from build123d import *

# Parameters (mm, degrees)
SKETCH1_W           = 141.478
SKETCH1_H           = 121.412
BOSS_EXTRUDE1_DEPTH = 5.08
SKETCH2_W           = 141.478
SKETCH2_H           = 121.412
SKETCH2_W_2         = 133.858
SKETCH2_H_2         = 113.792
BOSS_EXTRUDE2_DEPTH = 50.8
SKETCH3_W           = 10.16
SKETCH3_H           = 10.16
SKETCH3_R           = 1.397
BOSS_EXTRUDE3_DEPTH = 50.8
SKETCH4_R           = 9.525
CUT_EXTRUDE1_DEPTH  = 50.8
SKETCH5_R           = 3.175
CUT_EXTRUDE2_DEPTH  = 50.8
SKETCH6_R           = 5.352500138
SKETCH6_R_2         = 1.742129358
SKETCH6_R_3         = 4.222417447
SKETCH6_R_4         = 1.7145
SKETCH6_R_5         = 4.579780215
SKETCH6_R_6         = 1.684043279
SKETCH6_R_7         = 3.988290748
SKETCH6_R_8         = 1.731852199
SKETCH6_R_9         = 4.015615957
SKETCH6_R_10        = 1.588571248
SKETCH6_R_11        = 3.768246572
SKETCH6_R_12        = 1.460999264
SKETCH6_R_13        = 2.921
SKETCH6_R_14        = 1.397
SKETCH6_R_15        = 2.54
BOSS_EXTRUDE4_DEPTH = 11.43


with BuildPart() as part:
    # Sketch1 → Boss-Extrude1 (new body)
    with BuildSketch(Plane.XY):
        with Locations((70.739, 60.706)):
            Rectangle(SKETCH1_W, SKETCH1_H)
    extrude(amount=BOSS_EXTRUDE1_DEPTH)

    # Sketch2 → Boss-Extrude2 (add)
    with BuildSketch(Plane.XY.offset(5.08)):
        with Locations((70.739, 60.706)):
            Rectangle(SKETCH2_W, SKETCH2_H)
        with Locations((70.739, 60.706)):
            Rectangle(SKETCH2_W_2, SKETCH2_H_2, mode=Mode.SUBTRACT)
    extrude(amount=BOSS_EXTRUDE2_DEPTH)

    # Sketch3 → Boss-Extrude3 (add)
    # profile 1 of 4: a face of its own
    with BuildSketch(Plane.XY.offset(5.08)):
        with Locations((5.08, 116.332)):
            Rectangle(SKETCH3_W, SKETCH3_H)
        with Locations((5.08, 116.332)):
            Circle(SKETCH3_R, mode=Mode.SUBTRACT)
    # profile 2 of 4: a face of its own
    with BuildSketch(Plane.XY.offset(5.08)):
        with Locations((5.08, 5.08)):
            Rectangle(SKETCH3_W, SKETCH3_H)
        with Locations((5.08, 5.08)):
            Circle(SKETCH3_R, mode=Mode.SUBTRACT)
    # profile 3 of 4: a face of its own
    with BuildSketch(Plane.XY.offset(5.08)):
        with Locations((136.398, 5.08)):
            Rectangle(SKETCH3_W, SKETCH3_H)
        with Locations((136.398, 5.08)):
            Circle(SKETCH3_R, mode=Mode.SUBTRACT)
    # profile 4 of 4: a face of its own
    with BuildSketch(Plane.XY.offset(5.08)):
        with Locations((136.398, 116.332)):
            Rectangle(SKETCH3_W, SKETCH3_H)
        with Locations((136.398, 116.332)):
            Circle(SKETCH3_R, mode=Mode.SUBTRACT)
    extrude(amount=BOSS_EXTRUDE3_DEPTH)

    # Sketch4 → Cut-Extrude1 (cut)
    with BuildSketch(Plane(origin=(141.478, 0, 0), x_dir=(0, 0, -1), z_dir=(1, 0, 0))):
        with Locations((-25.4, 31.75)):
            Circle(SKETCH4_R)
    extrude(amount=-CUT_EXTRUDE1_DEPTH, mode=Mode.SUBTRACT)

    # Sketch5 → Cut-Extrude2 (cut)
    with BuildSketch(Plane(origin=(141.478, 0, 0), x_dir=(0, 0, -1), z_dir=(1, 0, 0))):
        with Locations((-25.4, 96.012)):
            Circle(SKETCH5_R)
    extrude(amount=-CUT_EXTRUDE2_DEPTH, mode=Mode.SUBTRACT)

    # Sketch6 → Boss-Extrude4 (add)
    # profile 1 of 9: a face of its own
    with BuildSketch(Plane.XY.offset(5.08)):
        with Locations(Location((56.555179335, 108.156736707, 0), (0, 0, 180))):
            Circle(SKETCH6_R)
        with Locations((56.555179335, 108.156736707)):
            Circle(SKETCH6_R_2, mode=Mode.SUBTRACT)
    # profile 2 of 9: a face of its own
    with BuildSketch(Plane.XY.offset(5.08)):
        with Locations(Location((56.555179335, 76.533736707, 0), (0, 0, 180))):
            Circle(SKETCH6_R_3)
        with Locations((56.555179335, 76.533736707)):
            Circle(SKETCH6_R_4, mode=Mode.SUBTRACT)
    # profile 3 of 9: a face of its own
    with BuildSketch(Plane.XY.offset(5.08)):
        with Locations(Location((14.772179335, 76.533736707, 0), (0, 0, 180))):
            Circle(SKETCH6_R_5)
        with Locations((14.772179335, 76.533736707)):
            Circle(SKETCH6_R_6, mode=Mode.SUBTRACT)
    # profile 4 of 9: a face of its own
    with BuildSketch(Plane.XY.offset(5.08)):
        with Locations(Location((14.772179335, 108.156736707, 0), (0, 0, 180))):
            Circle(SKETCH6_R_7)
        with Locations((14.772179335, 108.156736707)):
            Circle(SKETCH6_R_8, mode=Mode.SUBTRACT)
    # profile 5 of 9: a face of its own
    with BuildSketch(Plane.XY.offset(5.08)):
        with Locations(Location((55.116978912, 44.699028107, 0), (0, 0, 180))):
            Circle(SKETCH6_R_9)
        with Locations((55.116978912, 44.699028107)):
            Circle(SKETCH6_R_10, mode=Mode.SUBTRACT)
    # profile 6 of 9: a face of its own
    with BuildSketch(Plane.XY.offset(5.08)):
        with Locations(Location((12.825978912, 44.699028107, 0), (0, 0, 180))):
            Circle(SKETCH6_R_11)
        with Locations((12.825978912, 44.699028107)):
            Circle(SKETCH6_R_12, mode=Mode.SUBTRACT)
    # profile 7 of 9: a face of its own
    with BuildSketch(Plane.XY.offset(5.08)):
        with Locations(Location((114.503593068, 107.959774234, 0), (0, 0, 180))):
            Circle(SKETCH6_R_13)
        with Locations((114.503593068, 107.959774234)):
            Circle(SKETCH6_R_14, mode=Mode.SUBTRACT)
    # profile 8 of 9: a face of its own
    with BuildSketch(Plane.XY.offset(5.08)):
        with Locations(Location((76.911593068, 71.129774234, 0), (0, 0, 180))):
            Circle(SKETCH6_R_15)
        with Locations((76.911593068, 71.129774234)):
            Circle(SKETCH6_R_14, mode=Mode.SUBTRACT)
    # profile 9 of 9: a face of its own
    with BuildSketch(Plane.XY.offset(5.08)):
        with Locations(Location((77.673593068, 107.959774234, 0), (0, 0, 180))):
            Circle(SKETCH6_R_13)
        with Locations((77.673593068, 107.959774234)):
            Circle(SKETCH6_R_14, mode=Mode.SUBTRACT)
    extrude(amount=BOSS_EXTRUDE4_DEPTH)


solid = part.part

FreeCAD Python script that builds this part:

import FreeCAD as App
import Part
import Sketcher

V = App.Vector
Q = App.Units.Quantity


def add_polygon(sketch, points):
    """Adds a closed chain of lines whose ends are joined by coincident constraints."""
    first, n = sketch.GeometryCount, len(points)
    for a, b in zip(points, points[1:] + points[:1]):
        sketch.addGeometry(Part.LineSegment(App.Vector(*a, 0), App.Vector(*b, 0)), False)
    for i in range(n):
        sketch.addConstraint(Sketcher.Constraint("Coincident", first + i, 2, first + (i + 1) % n, 1))

doc = App.newDocument("Part")
body = doc.addObject("PartDesign::Body", "Body")

# Sketch on XY plane
sketch1 = body.newObject("Sketcher::SketchObject", "Sketch")
sketch1.AttachmentSupport = (doc.getObject("XY_Plane"), [""])
sketch1.MapMode = "FlatFace"
add_polygon(sketch1, [(0, 121), (0, 0), (141, 0), (141, 121)])  # lines 0-3
sketch1.addConstraint(Sketcher.Constraint("Vertical", 0))
sketch1.addConstraint(Sketcher.Constraint("Horizontal", 1))
sketch1.addConstraint(Sketcher.Constraint("Vertical", 2))
sketch1.addConstraint(Sketcher.Constraint("Horizontal", 3))
sketch1.addConstraint(Sketcher.Constraint("Coincident", 0, 2, -1, 1))
sketch1.addConstraint(Sketcher.Constraint("DistanceX", 1, 1, 1, 2, Q("5.57 in")))
sketch1.addConstraint(Sketcher.Constraint("DistanceY", 0, 2, 0, 1, Q("4.78 in")))
pad1 = body.newObject("PartDesign::Pad", "Pad")
pad1.Profile = sketch1
pad1.Length = Q("0.2 in")

# Sketch on XY plane
sketch2 = body.newObject("Sketcher::SketchObject", "Sketch001")
sketch2.AttachmentSupport = (doc.getObject("XY_Plane"), [""])
sketch2.MapMode = "FlatFace"
sketch2.AttachmentOffset = App.Placement(V(0, 0, 0.2 * 25.4), App.Rotation())
add_polygon(sketch2, [(0, 121), (0, 0), (141, 0), (141, 121)])  # lines 0-3
add_polygon(sketch2, [(138, 4), (4, 4), (4, 118), (138, 118)])  # lines 4-7
sketch2.addConstraint(Sketcher.Constraint("Vertical", 0))
sketch2.addConstraint(Sketcher.Constraint("Horizontal", 1))
sketch2.addConstraint(Sketcher.Constraint("Vertical", 2))
sketch2.addConstraint(Sketcher.Constraint("Horizontal", 3))
sketch2.addConstraint(Sketcher.Constraint("Horizontal", 4))
sketch2.addConstraint(Sketcher.Constraint("Vertical", 5))
sketch2.addConstraint(Sketcher.Constraint("Horizontal", 6))
sketch2.addConstraint(Sketcher.Constraint("Vertical", 7))
sketch2.addConstraint(Sketcher.Constraint("Coincident", 0, 2, -1, 1))
sketch2.addConstraint(Sketcher.Constraint("DistanceX", 1, 1, 1, 2, Q("5.57 in")))
sketch2.addConstraint(Sketcher.Constraint("DistanceX", 4, 2, 4, 1, Q("5.27 in")))
sketch2.addConstraint(Sketcher.Constraint("DistanceY", 0, 2, 0, 1, Q("4.78 in")))
sketch2.addConstraint(Sketcher.Constraint("DistanceY", 5, 1, 5, 2, Q("4.48 in")))
sketch2.addConstraint(Sketcher.Constraint("DistanceX", -1, 1, 4, 2, Q("0.15 in")))
sketch2.addConstraint(Sketcher.Constraint("DistanceY", -1, 1, 4, 2, Q("0.15 in")))
pad2 = body.newObject("PartDesign::Pad", "Pad001")
pad2.Profile = sketch2
pad2.Length = Q("2 in")

# Sketch on XY plane
sketch3 = body.newObject("Sketcher::SketchObject", "Sketch002")
sketch3.AttachmentSupport = (doc.getObject("XY_Plane"), [""])
sketch3.MapMode = "FlatFace"
sketch3.AttachmentOffset = App.Placement(V(0, 0, 0.2 * 25.4), App.Rotation())
add_polygon(sketch3, [(0, 121.4), (0, 111.3), (10.2, 111.3), (10.2, 121.4)])  # lines 0-3
sketch3.addGeometry(Part.Circle(V(5.1, 116.3, 0), V(0, 0, 1), 1.4), False)  # 4
add_polygon(sketch3, [(0, 10.2), (0, 0), (10.2, 0), (10.2, 10.2)])  # lines 5-8
sketch3.addGeometry(Part.Circle(V(5.1, 5.1, 0), V(0, 0, 1), 1.4), False)  # 9
add_polygon(sketch3, [(131.3, 10.2), (131.3, 0), (141.5, 0), (141.5, 10.2)])  # lines 10-13
sketch3.addGeometry(Part.Circle(V(136.4, 5.1, 0), V(0, 0, 1), 1.4), False)  # 14
add_polygon(sketch3, [(131.3, 121.4), (131.3, 111.3), (141.5, 111.3), (141.5, 121.4)])  # lines 15-18
sketch3.addGeometry(Part.Circle(V(136.4, 116.3, 0), V(0, 0, 1), 1.4), False)  # 19
sketch3.addConstraint(Sketcher.Constraint("Vertical", 0))
sketch3.addConstraint(Sketcher.Constraint("Horizontal", 1))
sketch3.addConstraint(Sketcher.Constraint("Vertical", 2))
sketch3.addConstraint(Sketcher.Constraint("Horizontal", 3))
sketch3.addConstraint(Sketcher.Constraint("Vertical", 5))
sketch3.addConstraint(Sketcher.Constraint("Horizontal", 6))
sketch3.addConstraint(Sketcher.Constraint("Vertical", 7))
sketch3.addConstraint(Sketcher.Constraint("Horizontal", 8))
sketch3.addConstraint(Sketcher.Constraint("Vertical", 10))
sketch3.addConstraint(Sketcher.Constraint("Horizontal", 11))
sketch3.addConstraint(Sketcher.Constraint("Vertical", 12))
sketch3.addConstraint(Sketcher.Constraint("Horizontal", 13))
sketch3.addConstraint(Sketcher.Constraint("Vertical", 15))
sketch3.addConstraint(Sketcher.Constraint("Horizontal", 16))
sketch3.addConstraint(Sketcher.Constraint("Vertical", 17))
sketch3.addConstraint(Sketcher.Constraint("Horizontal", 18))
sketch3.addConstraint(Sketcher.Constraint("Coincident", 5, 2, -1, 1))
sketch3.addConstraint(Sketcher.Constraint("Equal", 4, 9))
sketch3.addConstraint(Sketcher.Constraint("Equal", 9, 14))
sketch3.addConstraint(Sketcher.Constraint("Equal", 14, 19))
sketch3.addConstraint(Sketcher.Constraint("PointOnObject", 0, 2, -2))
sketch3.addConstraint(Sketcher.Constraint("PointOnObject", 10, 2, -1))
sketch3.addConstraint(Sketcher.Constraint("Horizontal", 9, 3, 14, 3))
sketch3.addConstraint(Sketcher.Constraint("Horizontal", 4, 3, 19, 3))
sketch3.addConstraint(Sketcher.Constraint("Horizontal", 8, 2, 12, 2))
sketch3.addConstraint(Sketcher.Constraint("Horizontal", 1, 2, 15, 2))
sketch3.addConstraint(Sketcher.Constraint("Horizontal", 3, 2, 17, 2))
sketch3.addConstraint(Sketcher.Constraint("Vertical", 4, 3, 9, 3))
sketch3.addConstraint(Sketcher.Constraint("Vertical", 14, 3, 19, 3))
sketch3.addConstraint(Sketcher.Constraint("Vertical", 2, 2, 6, 2))
sketch3.addConstraint(Sketcher.Constraint("Vertical", 13, 2, 15, 2))
sketch3.addConstraint(Sketcher.Constraint("Vertical", 12, 2, 16, 2))
sketch3.addConstraint(Sketcher.Constraint("Equal", 8, 11))
sketch3.addConstraint(Sketcher.Constraint("Equal", 18, 0))
sketch3.addConstraint(Sketcher.Constraint("Equal", 2, 5))
sketch3.addConstraint(Sketcher.Constraint("Diameter", 4, Q("0.11 in")))
sketch3.addConstraint(Sketcher.Constraint("DistanceX", 1, 1, 1, 2, Q("0.4 in")))
sketch3.addConstraint(Sketcher.Constraint("DistanceX", -1, 1, 4, 3, Q("0.2 in")))
sketch3.addConstraint(Sketcher.Constraint("DistanceY", -1, 1, 9, 3, Q("0.2 in")))
sketch3.addConstraint(Sketcher.Constraint("DistanceY", 0, 2, 4, 3, Q("0.2 in")))
sketch3.addConstraint(Sketcher.Constraint("DistanceX", 10, 2, 14, 3, Q("0.2 in")))
sketch3.addConstraint(Sketcher.Constraint("DistanceY", -1, 1, 4, 3, Q("4.58 in")))
sketch3.addConstraint(Sketcher.Constraint("DistanceX", -1, 1, 14, 3, Q("5.37 in")))
pad3 = body.newObject("PartDesign::Pad", "Pad002")
pad3.Profile = sketch3
pad3.Length = Q("2 in")

# Sketch on YZ plane
sketch4 = body.newObject("Sketcher::SketchObject", "Sketch003")
sketch4.AttachmentSupport = (doc.getObject("YZ_Plane"), [""])
sketch4.MapMode = "FlatFace"
sketch4.AttachmentOffset = App.Placement(V(0, 0, 5.57 * 25.4), App.Rotation())
sketch4.addGeometry(Part.Circle(V(32, 25, 0), V(0, 0, 1), 10), False)
sketch4.addConstraint(Sketcher.Constraint("Diameter", 0, Q("0.75 in")))
sketch4.addConstraint(Sketcher.Constraint("DistanceY", -1, 1, 0, 3, Q("1 in")))
sketch4.addConstraint(Sketcher.Constraint("DistanceX", -1, 1, 0, 3, Q("1.25 in")))
pocket1 = body.newObject("PartDesign::Pocket", "Pocket")
pocket1.Profile = sketch4
pocket1.Length = Q("2 in")

# Sketch on YZ plane
sketch5 = body.newObject("Sketcher::SketchObject", "Sketch004")
sketch5.AttachmentSupport = (doc.getObject("YZ_Plane"), [""])
sketch5.MapMode = "FlatFace"
sketch5.AttachmentOffset = App.Placement(V(0, 0, 5.57 * 25.4), App.Rotation())
sketch5.addGeometry(Part.Circle(V(96, 25.4, 0), V(0, 0, 1), 3.2), False)
sketch5.addConstraint(Sketcher.Constraint("Diameter", 0, Q("0.25 in")))
sketch5.addConstraint(Sketcher.Constraint("DistanceY", -1, 1, 0, 3, Q("1 in")))
sketch5.addConstraint(Sketcher.Constraint("DistanceX", -1, 1, 0, 3, Q("3.78 in")))
pocket2 = body.newObject("PartDesign::Pocket", "Pocket001")
pocket2.Profile = sketch5
pocket2.Length = Q("2 in")

# Sketch on XY plane
sketch6 = body.newObject("Sketcher::SketchObject", "Sketch005")
sketch6.AttachmentSupport = (doc.getObject("XY_Plane"), [""])
sketch6.MapMode = "FlatFace"
sketch6.AttachmentOffset = App.Placement(V(0, 0, 0.2 * 25.4), App.Rotation())
sketch6.addGeometry(Part.Circle(V(56.6, 108.2, 0), V(0, 0, 1), 5.4), False)
sketch6.addGeometry(Part.Circle(V(56.6, 108.2, 0), V(0, 0, 1), 1.7), False)
sketch6.addGeometry(Part.Circle(V(56.6, 76.5, 0), V(0, 0, 1), 4.2), False)
sketch6.addGeometry(Part.Circle(V(56.6, 76.5, 0), V(0, 0, 1), 1.7), False)
sketch6.addGeometry(Part.Circle(V(14.8, 76.5, 0), V(0, 0, 1), 4.6), False)
sketch6.addGeometry(Part.Circle(V(14.8, 76.5, 0), V(0, 0, 1), 1.7), False)
sketch6.addGeometry(Part.Circle(V(14.8, 108.2, 0), V(0, 0, 1), 4), False)
sketch6.addGeometry(Part.Circle(V(14.8, 108.2, 0), V(0, 0, 1), 1.7), False)
sketch6.addGeometry(Part.Circle(V(55.1, 44.7, 0), V(0, 0, 1), 4), False)
sketch6.addGeometry(Part.Circle(V(55.1, 44.7, 0), V(0, 0, 1), 1.6), False)
sketch6.addGeometry(Part.Circle(V(12.8, 44.7, 0), V(0, 0, 1), 3.8), False)
sketch6.addGeometry(Part.Circle(V(12.8, 44.7, 0), V(0, 0, 1), 1.5), False)
sketch6.addGeometry(Part.Circle(V(114.5, 108, 0), V(0, 0, 1), 2.9), False)
sketch6.addGeometry(Part.Circle(V(114.5, 108, 0), V(0, 0, 1), 1.4), False)
sketch6.addGeometry(Part.Circle(V(76.9, 71.1, 0), V(0, 0, 1), 2.5), False)
sketch6.addGeometry(Part.Circle(V(76.9, 71.1, 0), V(0, 0, 1), 1.4), False)
sketch6.addGeometry(Part.Circle(V(77.7, 108, 0), V(0, 0, 1), 2.9), False)
sketch6.addGeometry(Part.Circle(V(77.7, 108, 0), V(0, 0, 1), 1.4), False)
sketch6.addConstraint(Sketcher.Constraint("Coincident", 1, 3, 0, 3))
sketch6.addConstraint(Sketcher.Constraint("Coincident", 3, 3, 2, 3))
sketch6.addConstraint(Sketcher.Constraint("Coincident", 5, 3, 4, 3))
sketch6.addConstraint(Sketcher.Constraint("Coincident", 7, 3, 6, 3))
sketch6.addConstraint(Sketcher.Constraint("Coincident", 9, 3, 8, 3))
sketch6.addConstraint(Sketcher.Constraint("Coincident", 11, 3, 10, 3))
sketch6.addConstraint(Sketcher.Constraint("Coincident", 13, 3, 12, 3))
sketch6.addConstraint(Sketcher.Constraint("Coincident", 15, 3, 14, 3))
sketch6.addConstraint(Sketcher.Constraint("Coincident", 17, 3, 16, 3))
sketch6.addConstraint(Sketcher.Constraint("Equal", 13, 15))
sketch6.addConstraint(Sketcher.Constraint("Equal", 12, 16))
sketch6.addConstraint(Sketcher.Constraint("Equal", 15, 17))
sketch6.addConstraint(Sketcher.Constraint("Horizontal", 3, 3, 4, 3))
sketch6.addConstraint(Sketcher.Constraint("Horizontal", 1, 3, 6, 3))
sketch6.addConstraint(Sketcher.Constraint("Horizontal", 9, 3, 10, 3))
sketch6.addConstraint(Sketcher.Constraint("Horizontal", 13, 3, 16, 3))
sketch6.addConstraint(Sketcher.Constraint("Vertical", 1, 3, 2, 3))
sketch6.addConstraint(Sketcher.Constraint("Vertical", 5, 3, 6, 3))
sketch6.addConstraint(Sketcher.Constraint("Diameter", 14, Q("0.2 in")))
sketch6.addConstraint(Sketcher.Constraint("Diameter", 12, Q("0.23 in")))
sketch6.addConstraint(Sketcher.Constraint("Diameter", 13, Q("0.11 in")))
sketch6.addConstraint(Sketcher.Constraint("Diameter", 3, Q("0.135 in")))
sketch6.addConstraint(Sketcher.Constraint("Diameter", 0, 10.705))
sketch6.addConstraint(Sketcher.Constraint("Diameter", 11, 2.921999))
sketch6.addConstraint(Sketcher.Constraint("DistanceX", 16, 3, 12, 3, Q("1.45 in")))
sketch6.addConstraint(Sketcher.Constraint("DistanceX", 14, 3, 16, 3, Q("0.03 in")))
sketch6.addConstraint(Sketcher.Constraint("DistanceY", 14, 3, 16, 3, Q("1.45 in")))
sketch6.addConstraint(Sketcher.Constraint("Diameter", 1, 3.484259))
sketch6.addConstraint(Sketcher.Constraint("Diameter", 4, 9.15956))
sketch6.addConstraint(Sketcher.Constraint("Diameter", 6, 7.976581))
sketch6.addConstraint(Sketcher.Constraint("Diameter", 8, 8.031232))
sketch6.addConstraint(Sketcher.Constraint("DistanceY", 2, 3, 0, 3, Q("1.245 in")))
sketch6.addConstraint(Sketcher.Constraint("DistanceX", 4, 3, 2, 3, Q("1.645 in")))
sketch6.addConstraint(Sketcher.Constraint("DistanceX", 10, 3, 8, 3, Q("1.665 in")))
sketch6.addConstraint(Sketcher.Constraint("Diameter", 2, 8.444835))
sketch6.addConstraint(Sketcher.Constraint("Diameter", 5, 3.368087))
sketch6.addConstraint(Sketcher.Constraint("Diameter", 7, 3.463704))
sketch6.addConstraint(Sketcher.Constraint("Diameter", 9, 3.177142))
sketch6.addConstraint(Sketcher.Constraint("Diameter", 10, 7.536493))
sketch6.addConstraint(Sketcher.Constraint("DistanceX", 8, 3, 2, 3, 1.4382))
sketch6.addConstraint(Sketcher.Constraint("DistanceX", -1, 1, 0, 3, 56.555179))
sketch6.addConstraint(Sketcher.Constraint("DistanceY", -1, 1, 8, 3, 44.699028))
sketch6.addConstraint(Sketcher.Constraint("DistanceY", 8, 3, 2, 3, 31.834709))
sketch6.addConstraint(Sketcher.Constraint("DistanceX", -1, 1, 12, 3, 114.503593))
sketch6.addConstraint(Sketcher.Constraint("DistanceY", -1, 1, 12, 3, 107.959774))
pad4 = body.newObject("PartDesign::Pad", "Pad003")
pad4.Profile = sketch6
pad4.Length = Q("0.45 in")

doc.recompute()
